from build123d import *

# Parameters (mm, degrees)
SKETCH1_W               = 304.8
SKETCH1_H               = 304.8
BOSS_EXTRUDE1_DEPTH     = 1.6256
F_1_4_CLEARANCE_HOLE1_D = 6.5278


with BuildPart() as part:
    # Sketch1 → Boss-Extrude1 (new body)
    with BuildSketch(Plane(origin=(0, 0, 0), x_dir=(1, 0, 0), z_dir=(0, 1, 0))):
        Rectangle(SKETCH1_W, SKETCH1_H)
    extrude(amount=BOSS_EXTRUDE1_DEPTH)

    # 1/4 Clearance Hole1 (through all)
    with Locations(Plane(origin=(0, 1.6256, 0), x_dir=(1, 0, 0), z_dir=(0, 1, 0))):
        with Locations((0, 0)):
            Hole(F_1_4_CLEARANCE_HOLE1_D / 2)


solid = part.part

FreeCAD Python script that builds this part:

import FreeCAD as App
import Part
import Sketcher
Q = App.Units.Quantity

doc = App.newDocument("Part")
body = doc.addObject("PartDesign::Body", "Body")

# Sketch on XZ plane
sketch1 = body.newObject("Sketcher::SketchObject", "Sketch")
sketch1.AttachmentSupport = (doc.getObject("XZ_Plane"), [""])
sketch1.MapMode = "FlatFace"
sketch1.addGeometry(Part.LineSegment(App.Vector(-152, -152, 0), App.Vector(-152, 152, 0)), False)
sketch1.addGeometry(Part.LineSegment(App.Vector(-152, 152, 0), App.Vector(152, 152, 0)), False)
sketch1.addGeometry(Part.LineSegment(App.Vector(152, 152, 0), App.Vector(152, -152, 0)), False)
sketch1.addGeometry(Part.LineSegment(App.Vector(152, -152, 0), App.Vector(-152, -152, 0)), False)
sketch1.addConstraint(Sketcher.Constraint("Coincident", 0, 2, 1, 1))
sketch1.addConstraint(Sketcher.Constraint("Coincident", 1, 2, 2, 1))
sketch1.addConstraint(Sketcher.Constraint("Coincident", 2, 2, 3, 1))
sketch1.addConstraint(Sketcher.Constraint("Coincident", 3, 2, 0, 1))
sketch1.addConstraint(Sketcher.Constraint("Vertical", 0))
sketch1.addConstraint(Sketcher.Constraint("Horizontal", 1))
sketch1.addConstraint(Sketcher.Constraint("Vertical", 2))
sketch1.addConstraint(Sketcher.Constraint("Horizontal", 3))
sketch1.addConstraint(Sketcher.Constraint("Symmetric", 0, 2, 2, 2, -1, 1))
sketch1.addConstraint(Sketcher.Constraint("Equal", 3, 0))
sketch1.addConstraint(Sketcher.Constraint("DistanceX", 1, 1, 1, 2, Q("12 in")))
pad1 = body.newObject("PartDesign::Pad", "Pad")
pad1.Profile = sketch1
pad1.Length = Q("0.064 in")
pad1.Reversed = True

# Sketch on XZ plane
sketch2 = body.newObject("Sketcher::SketchObject", "Sketch001")
sketch2.AttachmentSupport = (doc.getObject("XZ_Plane"), [""])
sketch2.MapMode = "FlatFace"
sketch2.AttachmentOffset = App.Placement(App.Vector(0, 0, -0.064 * 25.4), App.Rotation())
sketch2.addGeometry(Part.Circle(App.Vector(0, 0, 0), App.Vector(0, 0, 1), 3.3), False)
sketch2.addConstraint(Sketcher.Constraint("Coincident", 0, 3, -1, 1))
sketch2.addConstraint(Sketcher.Constraint("Diameter", 0, Q("0.257 in")))
doc.recompute()
hole = body.newObject("PartDesign::Hole", "Hole")
hole.Profile = sketch2
hole.ThreadType = "None"
hole.Diameter = Q("0.257 in")
hole.DepthType = "ThroughAll"
hole.Reversed = True

doc.recompute()
